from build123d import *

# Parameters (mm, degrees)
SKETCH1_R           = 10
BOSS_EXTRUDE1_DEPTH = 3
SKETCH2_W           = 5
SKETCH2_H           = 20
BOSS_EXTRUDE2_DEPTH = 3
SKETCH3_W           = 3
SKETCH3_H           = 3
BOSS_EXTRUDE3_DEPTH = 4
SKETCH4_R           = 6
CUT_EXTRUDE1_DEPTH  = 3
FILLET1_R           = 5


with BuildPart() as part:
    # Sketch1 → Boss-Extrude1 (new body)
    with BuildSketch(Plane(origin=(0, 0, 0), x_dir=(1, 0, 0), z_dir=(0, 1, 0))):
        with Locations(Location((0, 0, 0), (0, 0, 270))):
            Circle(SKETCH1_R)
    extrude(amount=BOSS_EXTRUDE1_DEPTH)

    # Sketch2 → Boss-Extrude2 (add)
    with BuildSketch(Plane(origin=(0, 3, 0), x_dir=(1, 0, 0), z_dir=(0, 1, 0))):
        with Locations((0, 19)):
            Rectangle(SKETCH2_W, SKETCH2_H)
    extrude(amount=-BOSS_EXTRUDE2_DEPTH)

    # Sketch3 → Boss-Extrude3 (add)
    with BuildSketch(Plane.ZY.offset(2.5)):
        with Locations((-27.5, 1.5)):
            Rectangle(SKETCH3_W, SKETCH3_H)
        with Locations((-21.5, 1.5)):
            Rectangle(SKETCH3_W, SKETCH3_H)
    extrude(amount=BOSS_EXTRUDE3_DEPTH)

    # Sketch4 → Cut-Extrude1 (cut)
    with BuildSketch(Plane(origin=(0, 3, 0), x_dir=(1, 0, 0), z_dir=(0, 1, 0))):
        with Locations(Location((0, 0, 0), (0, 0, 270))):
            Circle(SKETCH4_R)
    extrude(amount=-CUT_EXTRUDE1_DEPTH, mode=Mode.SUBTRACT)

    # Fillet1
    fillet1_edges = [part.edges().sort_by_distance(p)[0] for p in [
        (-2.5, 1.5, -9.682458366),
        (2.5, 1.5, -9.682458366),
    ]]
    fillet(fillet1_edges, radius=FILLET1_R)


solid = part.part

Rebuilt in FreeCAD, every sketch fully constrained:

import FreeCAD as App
import Part
import Sketcher

V = App.Vector
Q = App.Units.Quantity


def edges_at(feature, points):
    """Names of the edges that pass closest to the given points."""
    edges = feature.Shape.Edges
    near = lambda p: min(range(len(edges)), key=lambda i: edges[i].distToShape(Part.Vertex(*p))[0])
    return sorted({f"Edge{near(p) + 1}" for p in points})


def add_polygon(sketch, points):
    """Adds a closed chain of lines whose ends are joined by coincident constraints."""
    first, n = sketch.GeometryCount, len(points)
    for a, b in zip(points, points[1:] + points[:1]):
        sketch.addGeometry(Part.LineSegment(App.Vector(*a, 0), App.Vector(*b, 0)), False)
    for i in range(n):
        sketch.addConstraint(Sketcher.Constraint("Coincident", first + i, 2, first + (i + 1) % n, 1))

doc = App.newDocument("Part")
body = doc.addObject("PartDesign::Body", "Body")

# Sketch on XZ plane
sketch1 = doc.addObject("Sketcher::SketchObject", "Sketch")
body.addObject(sketch1)
sketch1.AttachmentSupport = (doc.XZ_Plane, [""])
sketch1.MapMode = "FlatFace"
sketch1.addGeometry(Part.Circle(V(0, 0, 0), V(0, 0, 1), 10), False)
sketch1.addConstraint(Sketcher.Constraint("Coincident", 0, 3, -1, 1))
sketch1.addConstraint(Sketcher.Constraint("Diameter", 0, Q("20 mm")))
pad1 = doc.addObject("PartDesign::Pad", "Pad")
body.addObject(pad1)
pad1.Profile = sketch1
pad1.Length = 3
pad1.Reversed = True

# Sketch on XZ plane
sketch2 = doc.addObject("Sketcher::SketchObject", "Sketch001")
body.addObject(sketch2)
sketch2.AttachmentSupport = (doc.XZ_Plane, [""])
sketch2.MapMode = "FlatFace"
sketch2.AttachmentOffset = App.Placement(V(0, 0, -3), App.Rotation())
add_polygon(sketch2, [(-2, -29), (-2, -9), (2, -9), (2, -29)])  # lines 0-3
sketch2.addConstraint(Sketcher.Constraint("Vertical", 0))
sketch2.addConstraint(Sketcher.Constraint("Horizontal", 1))
sketch2.addConstraint(Sketcher.Constraint("Vertical", 2))
sketch2.addConstraint(Sketcher.Constraint("Horizontal", 3))
sketch2.addConstraint(Sketcher.Constraint("DistanceX", 1, 1, 1, 2, Q("5 mm")))
sketch2.addConstraint(Sketcher.Constraint("DistanceY", 0, 1, 0, 2, Q("20 mm")))
sketch2.addConstraint(Sketcher.Constraint("DistanceY", 0, 2, -1, 1, Q("9 mm")))
sketch2.addConstraint(Sketcher.Constraint("DistanceX", 0, 2, -1, 1, Q("2.5 mm")))
pad2 = doc.addObject("PartDesign::Pad", "Pad001")
body.addObject(pad2)
pad2.Profile = sketch2
pad2.Length = 3

# Sketch on YZ plane
sketch3 = doc.addObject("Sketcher::SketchObject", "Sketch002")
body.addObject(sketch3)
sketch3.AttachmentSupport = (doc.YZ_Plane, [""])
sketch3.MapMode = "FlatFace"
sketch3.AttachmentOffset = App.Placement(V(0, 0, -2.5), App.Rotation())
add_polygon(sketch3, [(3, -29), (0, -29), (0, -26), (3, -26)])  # lines 0-3
add_polygon(sketch3, [(3, -23), (0, -23), (0, -20), (3, -20)])  # lines 4-7
sketch3.addConstraint(Sketcher.Constraint("Horizontal", 0))
sketch3.addConstraint(Sketcher.Constraint("Vertical", 1))
sketch3.addConstraint(Sketcher.Constraint("Horizontal", 2))
sketch3.addConstraint(Sketcher.Constraint("Vertical", 3))
sketch3.addConstraint(Sketcher.Constraint("Horizontal", 4))
sketch3.addConstraint(Sketcher.Constraint("Vertical", 5))
sketch3.addConstraint(Sketcher.Constraint("Horizontal", 6))
sketch3.addConstraint(Sketcher.Constraint("Vertical", 7))
sketch3.addConstraint(Sketcher.Constraint("PointOnObject", 0, 2, -2))
sketch3.addConstraint(Sketcher.Constraint("PointOnObject", 4, 2, -2))
sketch3.addConstraint(Sketcher.Constraint("Vertical", 3, 2, 6, 2))
sketch3.addConstraint(Sketcher.Constraint("Equal", 6, 1))
sketch3.addConstraint(Sketcher.Constraint("Equal", 3, 5))
sketch3.addConstraint(Sketcher.Constraint("DistanceX", 0, 2, 0, 1, Q("3 mm")))
sketch3.addConstraint(Sketcher.Constraint("DistanceY", 0, 2, -1, 1, Q("29 mm")))
sketch3.addConstraint(Sketcher.Constraint("DistanceY", 4, 2, -1, 1, Q("23 mm")))
pad3 = doc.addObject("PartDesign::Pad", "Pad002")
body.addObject(pad3)
pad3.Profile = sketch3
pad3.Length = 4
pad3.Reversed = True

# Sketch on XZ plane
sketch4 = doc.addObject("Sketcher::SketchObject", "Sketch003")
body.addObject(sketch4)
sketch4.AttachmentSupport = (doc.XZ_Plane, [""])
sketch4.MapMode = "FlatFace"
sketch4.AttachmentOffset = App.Placement(V(0, 0, -3), App.Rotation())
sketch4.addGeometry(Part.Circle(V(0, 0, 0), V(0, 0, 1), 6), False)
sketch4.addConstraint(Sketcher.Constraint("Coincident", 0, 3, -1, 1))
sketch4.addConstraint(Sketcher.Constraint("Diameter", 0, Q("12 mm")))
pocket1 = doc.addObject("PartDesign::Pocket", "Pocket")
body.addObject(pocket1)
pocket1.Profile = sketch4
pocket1.Length = 3
pocket1.Reversed = True
doc.recompute()

fillet = doc.addObject("PartDesign::Fillet", "Fillet")
body.addObject(fillet)
fillet.Base = (pocket1, edges_at(pocket1, [(-2.5, 1.5, -9.682), (2.5, 1.5, -9.682)]))
fillet.Radius = 5

doc.recompute()
